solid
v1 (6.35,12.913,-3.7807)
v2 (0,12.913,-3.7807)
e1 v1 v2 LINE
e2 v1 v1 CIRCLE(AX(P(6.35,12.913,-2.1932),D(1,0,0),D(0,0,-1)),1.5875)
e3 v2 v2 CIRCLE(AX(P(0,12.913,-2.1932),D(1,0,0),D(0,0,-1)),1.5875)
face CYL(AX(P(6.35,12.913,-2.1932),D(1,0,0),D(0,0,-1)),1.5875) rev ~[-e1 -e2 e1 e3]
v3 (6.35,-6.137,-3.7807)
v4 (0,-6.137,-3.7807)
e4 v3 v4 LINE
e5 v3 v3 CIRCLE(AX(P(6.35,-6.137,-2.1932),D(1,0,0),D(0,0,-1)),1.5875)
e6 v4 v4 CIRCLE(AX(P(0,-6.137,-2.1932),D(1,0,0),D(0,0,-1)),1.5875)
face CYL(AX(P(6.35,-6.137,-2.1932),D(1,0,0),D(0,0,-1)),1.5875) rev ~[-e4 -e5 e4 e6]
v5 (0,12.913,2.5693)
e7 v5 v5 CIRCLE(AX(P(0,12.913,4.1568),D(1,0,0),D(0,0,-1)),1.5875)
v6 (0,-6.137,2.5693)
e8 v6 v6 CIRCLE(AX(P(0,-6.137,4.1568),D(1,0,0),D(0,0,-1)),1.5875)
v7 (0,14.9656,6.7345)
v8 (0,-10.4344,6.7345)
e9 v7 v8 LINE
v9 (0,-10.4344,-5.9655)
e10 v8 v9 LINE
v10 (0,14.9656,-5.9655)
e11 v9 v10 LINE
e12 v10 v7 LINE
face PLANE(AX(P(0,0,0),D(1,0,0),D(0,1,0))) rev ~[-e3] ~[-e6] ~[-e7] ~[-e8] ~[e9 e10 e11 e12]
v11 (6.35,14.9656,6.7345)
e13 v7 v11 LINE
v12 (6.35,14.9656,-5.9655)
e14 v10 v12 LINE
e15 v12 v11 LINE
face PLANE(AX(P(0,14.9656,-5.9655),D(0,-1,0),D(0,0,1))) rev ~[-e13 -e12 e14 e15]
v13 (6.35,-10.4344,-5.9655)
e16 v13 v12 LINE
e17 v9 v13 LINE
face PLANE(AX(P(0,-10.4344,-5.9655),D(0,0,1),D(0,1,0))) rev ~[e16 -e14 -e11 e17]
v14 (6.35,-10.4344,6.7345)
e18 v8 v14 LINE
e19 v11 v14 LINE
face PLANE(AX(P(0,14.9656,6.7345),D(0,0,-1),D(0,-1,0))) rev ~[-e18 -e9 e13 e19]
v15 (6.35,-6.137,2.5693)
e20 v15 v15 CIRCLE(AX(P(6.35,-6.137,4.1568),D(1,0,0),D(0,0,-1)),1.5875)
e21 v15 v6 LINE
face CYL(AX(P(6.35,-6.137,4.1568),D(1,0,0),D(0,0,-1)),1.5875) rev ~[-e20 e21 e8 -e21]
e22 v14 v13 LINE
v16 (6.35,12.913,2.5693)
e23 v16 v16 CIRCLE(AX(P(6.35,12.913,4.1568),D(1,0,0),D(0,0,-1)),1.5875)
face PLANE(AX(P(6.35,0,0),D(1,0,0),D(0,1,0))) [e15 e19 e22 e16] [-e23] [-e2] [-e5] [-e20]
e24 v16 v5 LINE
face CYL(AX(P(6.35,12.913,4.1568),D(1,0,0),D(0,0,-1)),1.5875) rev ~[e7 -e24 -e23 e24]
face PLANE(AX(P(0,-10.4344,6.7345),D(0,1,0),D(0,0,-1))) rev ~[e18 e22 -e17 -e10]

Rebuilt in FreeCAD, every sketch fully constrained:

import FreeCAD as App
import Part
import Sketcher

V = App.Vector
Q = App.Units.Quantity

doc = App.newDocument("Part")
body = doc.addObject("PartDesign::Body", "Body")

# Sketch on YZ plane
sketch1 = body.newObject("Sketcher::SketchObject", "Sketch")
sketch1.AttachmentSupport = (doc.getObject("YZ_Plane"), [""])
sketch1.MapMode = "FlatFace"
sketch1.addGeometry([
    Part.LineSegment(V(15, -6, 0), V(15, 7, 0)),
    Part.LineSegment(V(15, 7, 0), V(-10, 7, 0)),
    Part.LineSegment(V(-10, 7, 0), V(-10, -6, 0)),
    Part.LineSegment(V(-10, -6, 0), V(15, -6, 0)),
], False)
sketch1.addConstraint([
    Sketcher.Constraint("Coincident", 0, 2, 1, 1),
    Sketcher.Constraint("Coincident", 1, 2, 2, 1),
    Sketcher.Constraint("Coincident", 2, 2, 3, 1),
    Sketcher.Constraint("Coincident", 3, 2, 0, 1),
    Sketcher.Constraint("Vertical", 0),
    Sketcher.Constraint("Horizontal", 1),
    Sketcher.Constraint("Vertical", 2),
    Sketcher.Constraint("Horizontal", 3),
    Sketcher.Constraint("DistanceX", 1, 2, 1, 1, Q("1 in")),
    Sketcher.Constraint("DistanceY", 0, 1, 0, 2, Q("0.5 in")),
    Sketcher.Constraint("DistanceX", -1, 1, 0, 2, Q("0.5892 in")),
    Sketcher.Constraint("DistanceY", -1, 1, 0, 2, Q("6.7345 mm")),
])
pad1 = body.newObject("PartDesign::Pad", "Pad")
pad1.Profile = sketch1
pad1.Length = Q("0.25 in")

# Sketch on YZ plane
sketch2 = body.newObject("Sketcher::SketchObject", "Sketch001")
sketch2.AttachmentSupport = (doc.getObject("YZ_Plane"), [""])
sketch2.MapMode = "FlatFace"
sketch2.AttachmentOffset = App.Placement(V(0, 0, 0.25 * 25.4), App.Rotation())
sketch2.addGeometry([
    Part.Circle(V(12.9, 4.2, 0), V(0, 0, 1), 1.6),
    Part.Circle(V(12.9, -2.2, 0), V(0, 0, 1), 1.6),
    Part.Circle(V(-6.1, 4.2, 0), V(0, 0, 1), 1.6),
    Part.Circle(V(-6.1, -2.2, 0), V(0, 0, 1), 1.6),
], False)
sketch2.addConstraint([
    Sketcher.Constraint("Equal", 0, 1),
    Sketcher.Constraint("Equal", 1, 2),
    Sketcher.Constraint("Equal", 2, 3),
    Sketcher.Constraint("Horizontal", 0, 3, 2, 3),
    Sketcher.Constraint("Horizontal", 1, 3, 3, 3),
    Sketcher.Constraint("Vertical", 0, 3, 1, 3),
    Sketcher.Constraint("Vertical", 2, 3, 3, 3),
    Sketcher.Constraint("Diameter", 0, Q("0.125 in")),
    Sketcher.Constraint("DistanceY", 1, 3, 0, 3, Q("0.25 in")),
    Sketcher.Constraint("DistanceX", 2, 3, 0, 3, Q("0.75 in")),
    Sketcher.Constraint("DistanceX", -1, 1, 0, 3, Q("12.913 mm")),
    Sketcher.Constraint("DistanceY", -1, 1, 0, 3, Q("4.1568 mm")),
])
pocket1 = body.newObject("PartDesign::Pocket", "Pocket")
pocket1.Profile = sketch2
pocket1.Length = Q("0.25 in")

doc.recompute()
